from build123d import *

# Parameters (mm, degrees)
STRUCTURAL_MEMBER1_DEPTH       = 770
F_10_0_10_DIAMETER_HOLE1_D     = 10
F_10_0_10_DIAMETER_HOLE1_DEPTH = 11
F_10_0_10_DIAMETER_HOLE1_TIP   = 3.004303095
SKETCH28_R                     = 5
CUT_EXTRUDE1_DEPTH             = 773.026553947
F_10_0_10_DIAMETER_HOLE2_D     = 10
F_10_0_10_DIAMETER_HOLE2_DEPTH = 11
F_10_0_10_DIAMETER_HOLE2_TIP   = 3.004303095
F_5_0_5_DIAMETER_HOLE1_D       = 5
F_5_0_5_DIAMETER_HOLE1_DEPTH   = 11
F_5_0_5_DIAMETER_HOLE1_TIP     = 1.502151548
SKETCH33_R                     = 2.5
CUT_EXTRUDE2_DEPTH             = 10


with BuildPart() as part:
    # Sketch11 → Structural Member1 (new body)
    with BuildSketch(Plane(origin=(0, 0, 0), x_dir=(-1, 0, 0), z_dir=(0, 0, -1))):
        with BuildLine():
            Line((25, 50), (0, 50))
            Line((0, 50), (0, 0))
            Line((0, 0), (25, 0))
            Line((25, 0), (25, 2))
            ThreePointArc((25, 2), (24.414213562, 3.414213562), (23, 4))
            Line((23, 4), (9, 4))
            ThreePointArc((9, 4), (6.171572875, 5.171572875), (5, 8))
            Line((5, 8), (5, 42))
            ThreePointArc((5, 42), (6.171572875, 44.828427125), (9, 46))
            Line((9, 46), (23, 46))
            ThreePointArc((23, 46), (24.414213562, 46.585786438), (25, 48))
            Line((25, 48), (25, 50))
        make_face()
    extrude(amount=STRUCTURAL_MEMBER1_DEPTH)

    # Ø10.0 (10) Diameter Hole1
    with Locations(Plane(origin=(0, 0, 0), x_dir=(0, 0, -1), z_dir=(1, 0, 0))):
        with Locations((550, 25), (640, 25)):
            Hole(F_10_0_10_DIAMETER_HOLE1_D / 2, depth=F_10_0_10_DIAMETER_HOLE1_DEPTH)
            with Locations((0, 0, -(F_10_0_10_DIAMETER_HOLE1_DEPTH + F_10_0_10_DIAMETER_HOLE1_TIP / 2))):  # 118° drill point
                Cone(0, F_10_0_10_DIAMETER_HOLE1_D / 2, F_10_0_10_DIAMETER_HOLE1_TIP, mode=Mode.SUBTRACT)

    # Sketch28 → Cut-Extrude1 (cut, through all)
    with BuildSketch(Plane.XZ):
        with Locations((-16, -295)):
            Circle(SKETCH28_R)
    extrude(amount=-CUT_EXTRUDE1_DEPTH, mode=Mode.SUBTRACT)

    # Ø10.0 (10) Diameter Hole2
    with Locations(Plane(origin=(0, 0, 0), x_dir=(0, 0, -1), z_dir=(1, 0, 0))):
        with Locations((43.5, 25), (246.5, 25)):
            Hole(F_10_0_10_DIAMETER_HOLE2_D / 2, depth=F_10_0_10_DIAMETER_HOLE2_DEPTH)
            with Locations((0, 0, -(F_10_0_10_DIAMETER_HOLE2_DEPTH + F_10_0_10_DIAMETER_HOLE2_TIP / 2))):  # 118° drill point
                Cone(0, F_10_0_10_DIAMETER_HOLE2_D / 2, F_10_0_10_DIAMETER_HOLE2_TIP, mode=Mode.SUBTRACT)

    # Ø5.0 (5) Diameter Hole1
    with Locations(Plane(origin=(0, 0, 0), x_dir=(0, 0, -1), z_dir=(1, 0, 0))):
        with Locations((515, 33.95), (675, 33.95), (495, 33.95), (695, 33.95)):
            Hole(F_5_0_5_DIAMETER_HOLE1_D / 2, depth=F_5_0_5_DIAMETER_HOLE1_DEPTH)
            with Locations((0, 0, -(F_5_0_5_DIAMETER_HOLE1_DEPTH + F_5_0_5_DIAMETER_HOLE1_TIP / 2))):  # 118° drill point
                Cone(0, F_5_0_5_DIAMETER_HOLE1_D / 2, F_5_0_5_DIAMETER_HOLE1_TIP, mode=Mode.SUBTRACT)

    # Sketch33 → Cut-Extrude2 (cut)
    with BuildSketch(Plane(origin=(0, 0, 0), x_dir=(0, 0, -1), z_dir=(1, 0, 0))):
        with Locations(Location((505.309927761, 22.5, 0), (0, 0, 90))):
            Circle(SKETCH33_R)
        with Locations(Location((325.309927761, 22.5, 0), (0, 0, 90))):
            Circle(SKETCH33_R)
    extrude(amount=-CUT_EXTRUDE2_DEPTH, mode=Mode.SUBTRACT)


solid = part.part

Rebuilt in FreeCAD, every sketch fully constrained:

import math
import FreeCAD as App
import Part
import Sketcher

V = App.Vector

doc = App.newDocument("Part")
body = doc.addObject("PartDesign::Body", "Body")

sketch1 = doc.addObject("Sketcher::SketchObject", "Sketch")
body.addObject(sketch1)
sketch1.AttachmentSupport = (doc.XY_Plane, [""])
sketch1.MapMode = "FlatFace"
sketch1.addGeometry([
    Part.LineSegment(V(-25, 50, 0), V(0, 50, 0)),
    Part.LineSegment(V(0, 50, 0), V(0, 0, 0)),
    Part.LineSegment(V(0, 0, 0), V(-25, 0, 0)),
    Part.LineSegment(V(-25, 0, 0), V(-25, 2, 0)),
    Part.ArcOfCircle(Part.Circle(V(-23, 2, 0), V(0, 0, 1), 2), math.radians(90), math.radians(180)),
    Part.LineSegment(V(-23, 4, 0), V(-9, 4, 0)),
    Part.ArcOfCircle(Part.Circle(V(-9, 8, 0), V(0, 0, 1), 4), math.radians(-90), math.radians(0)),
    Part.LineSegment(V(-5, 8, 0), V(-5, 42, 0)),
    Part.ArcOfCircle(Part.Circle(V(-9, 42, 0), V(0, 0, 1), 4), math.radians(0), math.radians(90)),
    Part.LineSegment(V(-9, 46, 0), V(-23, 46, 0)),
    Part.ArcOfCircle(Part.Circle(V(-23, 48, 0), V(0, 0, 1), 2), math.radians(-180), math.radians(-90)),
    Part.LineSegment(V(-25, 48, 0), V(-25, 50, 0)),
], False)
sketch1.addConstraint([
    Sketcher.Constraint("Coincident", 0, 2, 1, 1),
    Sketcher.Constraint("Coincident", 1, 2, 2, 1),
    Sketcher.Constraint("Coincident", 2, 2, 3, 1),
    Sketcher.Constraint("Tangent", 3, 2, 4, 2),
    Sketcher.Constraint("Tangent", 4, 1, 5, 1),
    Sketcher.Constraint("Tangent", 5, 2, 6, 1),
    Sketcher.Constraint("Tangent", 6, 2, 7, 1),
    Sketcher.Constraint("Tangent", 7, 2, 8, 1),
    Sketcher.Constraint("Tangent", 8, 2, 9, 1),
    Sketcher.Constraint("Tangent", 9, 2, 10, 2),
    Sketcher.Constraint("Tangent", 10, 1, 11, 1),
    Sketcher.Constraint("Coincident", 11, 2, 0, 1),
    Sketcher.Constraint("Horizontal", 0),
    Sketcher.Constraint("Vertical", 1),
    Sketcher.Constraint("Horizontal", 2),
    Sketcher.Constraint("Vertical", 3),
    Sketcher.Constraint("Horizontal", 5),
    Sketcher.Constraint("Vertical", 7),
    Sketcher.Constraint("Horizontal", 9),
    Sketcher.Constraint("Vertical", 11),
    Sketcher.Constraint("Coincident", 1, 2, -1, 1),
    Sketcher.Constraint("Equal", 6, 8),
    Sketcher.Constraint("Equal", 4, 10),
    Sketcher.Constraint("Vertical", 4, 3, 10, 3),
    Sketcher.Constraint("Equal", 3, 11),
    Sketcher.Constraint("Radius", 4, 2.0),
    Sketcher.Constraint("Radius", 6, 4.0),
    Sketcher.Constraint("DistanceX", 0, 1, 0, 2, 25.0),
    Sketcher.Constraint("DistanceX", 5, 1, 5, 2, 14.0),
    Sketcher.Constraint("DistanceY", 1, 2, 1, 1, 50.0),
    Sketcher.Constraint("DistanceY", 3, 1, 3, 2, 2.0),
])
pad1 = doc.addObject("PartDesign::Pad", "Pad")
body.addObject(pad1)
pad1.Profile = sketch1
pad1.Length = 770
pad1.Reversed = True

sketch2 = doc.addObject("Sketcher::SketchObject", "Sketch001")
body.addObject(sketch2)
sketch2.AttachmentSupport = (doc.YZ_Plane, [""])
sketch2.MapMode = "FlatFace"
sketch2.addGeometry([
    Part.Circle(V(25, -550, 0), V(0, 0, 1), 5),
    Part.Circle(V(25, -640, 0), V(0, 0, 1), 5),
], False)
sketch2.addConstraint([
    Sketcher.Constraint("Equal", 0, 1),
    Sketcher.Constraint("Vertical", 0, 3, 1, 3),
    Sketcher.Constraint("Diameter", 0, 10.0),
    Sketcher.Constraint("DistanceX", -1, 1, 0, 3, 25.0),
    Sketcher.Constraint("DistanceY", 0, 3, -1, 1, 550.0),
    Sketcher.Constraint("DistanceY", 1, 3, -1, 1, 640.0),
])
doc.recompute()
hole = doc.addObject("PartDesign::Hole", "Hole")
body.addObject(hole)
hole.Profile = sketch2
hole.ThreadType = "None"
hole.Diameter = 10
hole.DepthType = "Dimension"
hole.Depth = 11
hole.DrillPoint = "Angled"
hole.DrillPointAngle = 118

sketch3 = doc.addObject("Sketcher::SketchObject", "Sketch002")
body.addObject(sketch3)
sketch3.AttachmentSupport = (doc.XZ_Plane, [""])
sketch3.MapMode = "FlatFace"
sketch3.addGeometry(Part.Circle(V(-16, -295, 0), V(0, 0, 1), 5), False)
sketch3.addConstraint([
    Sketcher.Constraint("Diameter", 0, 10.0),
    Sketcher.Constraint("DistanceX", 0, 3, -1, 1, 16.0),
    Sketcher.Constraint("DistanceY", 0, 3, -1, 1, 295.0),
])
pocket1 = doc.addObject("PartDesign::Pocket", "Pocket")
body.addObject(pocket1)
pocket1.Profile = sketch3
pocket1.Type = "ThroughAll"

sketch4 = doc.addObject("Sketcher::SketchObject", "Sketch003")
body.addObject(sketch4)
sketch4.AttachmentSupport = (doc.YZ_Plane, [""])
sketch4.MapMode = "FlatFace"
sketch4.addGeometry([
    Part.Circle(V(25, -44, 0), V(0, 0, 1), 5),
    Part.Circle(V(25, -246, 0), V(0, 0, 1), 5),
], False)
sketch4.addConstraint([
    Sketcher.Constraint("Equal", 0, 1),
    Sketcher.Constraint("Vertical", 0, 3, 1, 3),
    Sketcher.Constraint("Diameter", 0, 10.0),
    Sketcher.Constraint("DistanceX", -1, 1, 0, 3, 25.0),
    Sketcher.Constraint("DistanceY", 1, 3, 0, 3, 203.0),
    Sketcher.Constraint("DistanceY", 0, 3, -1, 1, 43.5),
])
doc.recompute()
hole2 = doc.addObject("PartDesign::Hole", "Hole001")
body.addObject(hole2)
hole2.Profile = sketch4
hole2.ThreadType = "None"
hole2.Diameter = 10
hole2.DepthType = "Dimension"
hole2.Depth = 11
hole2.DrillPoint = "Angled"
hole2.DrillPointAngle = 118

sketch5 = doc.addObject("Sketcher::SketchObject", "Sketch004")
body.addObject(sketch5)
sketch5.AttachmentSupport = (doc.YZ_Plane, [""])
sketch5.MapMode = "FlatFace"
sketch5.addGeometry([
    Part.Circle(V(34, -515, 0), V(0, 0, 1), 2.5),
    Part.Circle(V(34, -675, 0), V(0, 0, 1), 2.5),
    Part.Circle(V(34, -495, 0), V(0, 0, 1), 2.5),
    Part.Circle(V(34, -695, 0), V(0, 0, 1), 2.5),
], False)
sketch5.addConstraint([
    Sketcher.Constraint("Equal", 0, 1),
    Sketcher.Constraint("Equal", 1, 2),
    Sketcher.Constraint("Equal", 2, 3),
    Sketcher.Constraint("Vertical", 0, 3, 1, 3),
    Sketcher.Constraint("Vertical", 1, 3, 2, 3),
    Sketcher.Constraint("Vertical", 2, 3, 3, 3),
    Sketcher.Constraint("Diameter", 0, 5.0),
    Sketcher.Constraint("DistanceY", 0, 3, -1, 1, 515.0),
    Sketcher.Constraint("DistanceY", 1, 3, -1, 1, 675.0),
    Sketcher.Constraint("DistanceY", 2, 3, -1, 1, 495.0),
    Sketcher.Constraint("DistanceY", 3, 3, -1, 1, 695.0),
    Sketcher.Constraint("DistanceX", -1, 1, 0, 3, 33.95),
])
doc.recompute()
hole3 = doc.addObject("PartDesign::Hole", "Hole002")
body.addObject(hole3)
hole3.Profile = sketch5
hole3.ThreadType = "None"
hole3.Diameter = 5
hole3.DepthType = "Dimension"
hole3.Depth = 11
hole3.DrillPoint = "Angled"
hole3.DrillPointAngle = 118

sketch6 = doc.addObject("Sketcher::SketchObject", "Sketch005")
body.addObject(sketch6)
sketch6.AttachmentSupport = (doc.YZ_Plane, [""])
sketch6.MapMode = "FlatFace"
sketch6.addGeometry([
    Part.Circle(V(22.5, -505.3, 0), V(0, 0, 1), 2.5),
    Part.Circle(V(22.5, -325.3, 0), V(0, 0, 1), 2.5),
], False)
sketch6.addConstraint([
    Sketcher.Constraint("Equal", 0, 1),
    Sketcher.Constraint("Vertical", 0, 3, 1, 3),
    Sketcher.Constraint("Diameter", 0, 5.0),
    Sketcher.Constraint("DistanceY", 0, 3, 1, 3, 180.0),
    Sketcher.Constraint("DistanceX", -1, 1, 0, 3, 22.5),
    Sketcher.Constraint("DistanceY", 0, 3, -1, 1, 505.309928),
])
pocket2 = doc.addObject("PartDesign::Pocket", "Pocket001")
body.addObject(pocket2)
pocket2.Profile = sketch6
pocket2.Length = 10

doc.recompute()
